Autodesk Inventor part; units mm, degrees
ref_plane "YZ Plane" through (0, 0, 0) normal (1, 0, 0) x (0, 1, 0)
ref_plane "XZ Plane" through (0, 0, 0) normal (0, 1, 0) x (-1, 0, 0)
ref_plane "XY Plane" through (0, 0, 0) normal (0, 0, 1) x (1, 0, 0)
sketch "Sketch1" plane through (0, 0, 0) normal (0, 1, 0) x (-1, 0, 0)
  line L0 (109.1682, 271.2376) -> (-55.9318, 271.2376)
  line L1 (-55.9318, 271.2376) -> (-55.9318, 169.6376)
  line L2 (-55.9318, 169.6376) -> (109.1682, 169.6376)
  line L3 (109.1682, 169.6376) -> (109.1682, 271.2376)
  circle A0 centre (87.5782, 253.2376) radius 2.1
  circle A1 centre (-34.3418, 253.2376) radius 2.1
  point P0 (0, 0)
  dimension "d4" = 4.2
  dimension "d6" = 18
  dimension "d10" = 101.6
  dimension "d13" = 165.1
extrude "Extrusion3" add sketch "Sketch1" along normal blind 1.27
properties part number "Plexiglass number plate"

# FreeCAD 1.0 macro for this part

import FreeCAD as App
import Part
import Sketcher
Q = App.Units.Quantity


def add_polygon(sketch, points):
    """Adds a closed chain of lines whose ends are joined by coincident constraints."""
    first, n = sketch.GeometryCount, len(points)
    for a, b in zip(points, points[1:] + points[:1]):
        sketch.addGeometry(Part.LineSegment(App.Vector(*a, 0), App.Vector(*b, 0)), False)
    for i in range(n):
        sketch.addConstraint(Sketcher.Constraint("Coincident", first + i, 2, first + (i + 1) % n, 1))

doc = App.newDocument("Part")
params = doc.addObject("Spreadsheet::Sheet", "Params")
for row, (alias, value) in enumerate([
    ("sketch1_height", "4 in"),
    ("sketch1_width", "6.5 in"),
    ("pad1_length", "0.05 in"),
], start=1):
    params.set(f"A{row}", alias)
    params.set(f"B{row}", "=" + value)
    params.setAlias(f"B{row}", alias)

body = doc.addObject("PartDesign::Body", "Body")

# Sketch on XZ plane
sketch1 = doc.addObject("Sketcher::SketchObject", "Sketch")
body.addObject(sketch1)
sketch1.AttachmentSupport = (doc.XZ_Plane, [""])
sketch1.MapMode = "FlatFace"
add_polygon(sketch1, [(-109.2, 169.6), (-109.2, 271.2), (55.9, 271.2), (55.9, 169.6)])  # lines 0-3
sketch1.addGeometry(Part.Circle(App.Vector(34.3, 253.2, 0), App.Vector(0, 0, 1), 2.1), False)  # 4
sketch1.addGeometry(Part.Circle(App.Vector(-87.6, 253.2, 0), App.Vector(0, 0, 1), 2.1), False)  # 5
sketch1.addConstraint(Sketcher.Constraint("Vertical", 0))
sketch1.addConstraint(Sketcher.Constraint("Horizontal", 1))
sketch1.addConstraint(Sketcher.Constraint("Vertical", 2))
sketch1.addConstraint(Sketcher.Constraint("Horizontal", 3))
sketch1.addConstraint(Sketcher.Constraint("Equal", 4, 5))
sketch1.addConstraint(Sketcher.Constraint("Horizontal", 4, 3, 5, 3))
sketch1.addConstraint(Sketcher.Constraint("DistanceY", 0, 1, 0, 2, Q("4 in")))
sketch1.addConstraint(Sketcher.Constraint("DistanceX", 1, 1, 1, 2, Q("6.5 in")))
sketch1.addConstraint(Sketcher.Constraint("Diameter", 4, 4.2))
sketch1.addConstraint(Sketcher.Constraint("DistanceX", 5, 3, 4, 3, Q("4.8 in")))
sketch1.addConstraint(Sketcher.Constraint("DistanceX", 0, 2, 5, 3, Q("0.85 in")))
sketch1.addConstraint(Sketcher.Constraint("DistanceY", 5, 3, 0, 2, 18.0))
sketch1.addConstraint(Sketcher.Constraint("DistanceX", -1, 1, 4, 3, 34.3418))
sketch1.addConstraint(Sketcher.Constraint("DistanceY", -1, 1, 4, 3, 253.2376))
sketch1.setExpression("Constraints[10]", "Params.sketch1_height")
sketch1.setExpression("Constraints[11]", "Params.sketch1_width")
pad1 = doc.addObject("PartDesign::Pad", "Pad")
body.addObject(pad1)
pad1.Profile = sketch1
pad1.setExpression("Length", "Params.pad1_length")
pad1.Reversed = True

doc.recompute()
